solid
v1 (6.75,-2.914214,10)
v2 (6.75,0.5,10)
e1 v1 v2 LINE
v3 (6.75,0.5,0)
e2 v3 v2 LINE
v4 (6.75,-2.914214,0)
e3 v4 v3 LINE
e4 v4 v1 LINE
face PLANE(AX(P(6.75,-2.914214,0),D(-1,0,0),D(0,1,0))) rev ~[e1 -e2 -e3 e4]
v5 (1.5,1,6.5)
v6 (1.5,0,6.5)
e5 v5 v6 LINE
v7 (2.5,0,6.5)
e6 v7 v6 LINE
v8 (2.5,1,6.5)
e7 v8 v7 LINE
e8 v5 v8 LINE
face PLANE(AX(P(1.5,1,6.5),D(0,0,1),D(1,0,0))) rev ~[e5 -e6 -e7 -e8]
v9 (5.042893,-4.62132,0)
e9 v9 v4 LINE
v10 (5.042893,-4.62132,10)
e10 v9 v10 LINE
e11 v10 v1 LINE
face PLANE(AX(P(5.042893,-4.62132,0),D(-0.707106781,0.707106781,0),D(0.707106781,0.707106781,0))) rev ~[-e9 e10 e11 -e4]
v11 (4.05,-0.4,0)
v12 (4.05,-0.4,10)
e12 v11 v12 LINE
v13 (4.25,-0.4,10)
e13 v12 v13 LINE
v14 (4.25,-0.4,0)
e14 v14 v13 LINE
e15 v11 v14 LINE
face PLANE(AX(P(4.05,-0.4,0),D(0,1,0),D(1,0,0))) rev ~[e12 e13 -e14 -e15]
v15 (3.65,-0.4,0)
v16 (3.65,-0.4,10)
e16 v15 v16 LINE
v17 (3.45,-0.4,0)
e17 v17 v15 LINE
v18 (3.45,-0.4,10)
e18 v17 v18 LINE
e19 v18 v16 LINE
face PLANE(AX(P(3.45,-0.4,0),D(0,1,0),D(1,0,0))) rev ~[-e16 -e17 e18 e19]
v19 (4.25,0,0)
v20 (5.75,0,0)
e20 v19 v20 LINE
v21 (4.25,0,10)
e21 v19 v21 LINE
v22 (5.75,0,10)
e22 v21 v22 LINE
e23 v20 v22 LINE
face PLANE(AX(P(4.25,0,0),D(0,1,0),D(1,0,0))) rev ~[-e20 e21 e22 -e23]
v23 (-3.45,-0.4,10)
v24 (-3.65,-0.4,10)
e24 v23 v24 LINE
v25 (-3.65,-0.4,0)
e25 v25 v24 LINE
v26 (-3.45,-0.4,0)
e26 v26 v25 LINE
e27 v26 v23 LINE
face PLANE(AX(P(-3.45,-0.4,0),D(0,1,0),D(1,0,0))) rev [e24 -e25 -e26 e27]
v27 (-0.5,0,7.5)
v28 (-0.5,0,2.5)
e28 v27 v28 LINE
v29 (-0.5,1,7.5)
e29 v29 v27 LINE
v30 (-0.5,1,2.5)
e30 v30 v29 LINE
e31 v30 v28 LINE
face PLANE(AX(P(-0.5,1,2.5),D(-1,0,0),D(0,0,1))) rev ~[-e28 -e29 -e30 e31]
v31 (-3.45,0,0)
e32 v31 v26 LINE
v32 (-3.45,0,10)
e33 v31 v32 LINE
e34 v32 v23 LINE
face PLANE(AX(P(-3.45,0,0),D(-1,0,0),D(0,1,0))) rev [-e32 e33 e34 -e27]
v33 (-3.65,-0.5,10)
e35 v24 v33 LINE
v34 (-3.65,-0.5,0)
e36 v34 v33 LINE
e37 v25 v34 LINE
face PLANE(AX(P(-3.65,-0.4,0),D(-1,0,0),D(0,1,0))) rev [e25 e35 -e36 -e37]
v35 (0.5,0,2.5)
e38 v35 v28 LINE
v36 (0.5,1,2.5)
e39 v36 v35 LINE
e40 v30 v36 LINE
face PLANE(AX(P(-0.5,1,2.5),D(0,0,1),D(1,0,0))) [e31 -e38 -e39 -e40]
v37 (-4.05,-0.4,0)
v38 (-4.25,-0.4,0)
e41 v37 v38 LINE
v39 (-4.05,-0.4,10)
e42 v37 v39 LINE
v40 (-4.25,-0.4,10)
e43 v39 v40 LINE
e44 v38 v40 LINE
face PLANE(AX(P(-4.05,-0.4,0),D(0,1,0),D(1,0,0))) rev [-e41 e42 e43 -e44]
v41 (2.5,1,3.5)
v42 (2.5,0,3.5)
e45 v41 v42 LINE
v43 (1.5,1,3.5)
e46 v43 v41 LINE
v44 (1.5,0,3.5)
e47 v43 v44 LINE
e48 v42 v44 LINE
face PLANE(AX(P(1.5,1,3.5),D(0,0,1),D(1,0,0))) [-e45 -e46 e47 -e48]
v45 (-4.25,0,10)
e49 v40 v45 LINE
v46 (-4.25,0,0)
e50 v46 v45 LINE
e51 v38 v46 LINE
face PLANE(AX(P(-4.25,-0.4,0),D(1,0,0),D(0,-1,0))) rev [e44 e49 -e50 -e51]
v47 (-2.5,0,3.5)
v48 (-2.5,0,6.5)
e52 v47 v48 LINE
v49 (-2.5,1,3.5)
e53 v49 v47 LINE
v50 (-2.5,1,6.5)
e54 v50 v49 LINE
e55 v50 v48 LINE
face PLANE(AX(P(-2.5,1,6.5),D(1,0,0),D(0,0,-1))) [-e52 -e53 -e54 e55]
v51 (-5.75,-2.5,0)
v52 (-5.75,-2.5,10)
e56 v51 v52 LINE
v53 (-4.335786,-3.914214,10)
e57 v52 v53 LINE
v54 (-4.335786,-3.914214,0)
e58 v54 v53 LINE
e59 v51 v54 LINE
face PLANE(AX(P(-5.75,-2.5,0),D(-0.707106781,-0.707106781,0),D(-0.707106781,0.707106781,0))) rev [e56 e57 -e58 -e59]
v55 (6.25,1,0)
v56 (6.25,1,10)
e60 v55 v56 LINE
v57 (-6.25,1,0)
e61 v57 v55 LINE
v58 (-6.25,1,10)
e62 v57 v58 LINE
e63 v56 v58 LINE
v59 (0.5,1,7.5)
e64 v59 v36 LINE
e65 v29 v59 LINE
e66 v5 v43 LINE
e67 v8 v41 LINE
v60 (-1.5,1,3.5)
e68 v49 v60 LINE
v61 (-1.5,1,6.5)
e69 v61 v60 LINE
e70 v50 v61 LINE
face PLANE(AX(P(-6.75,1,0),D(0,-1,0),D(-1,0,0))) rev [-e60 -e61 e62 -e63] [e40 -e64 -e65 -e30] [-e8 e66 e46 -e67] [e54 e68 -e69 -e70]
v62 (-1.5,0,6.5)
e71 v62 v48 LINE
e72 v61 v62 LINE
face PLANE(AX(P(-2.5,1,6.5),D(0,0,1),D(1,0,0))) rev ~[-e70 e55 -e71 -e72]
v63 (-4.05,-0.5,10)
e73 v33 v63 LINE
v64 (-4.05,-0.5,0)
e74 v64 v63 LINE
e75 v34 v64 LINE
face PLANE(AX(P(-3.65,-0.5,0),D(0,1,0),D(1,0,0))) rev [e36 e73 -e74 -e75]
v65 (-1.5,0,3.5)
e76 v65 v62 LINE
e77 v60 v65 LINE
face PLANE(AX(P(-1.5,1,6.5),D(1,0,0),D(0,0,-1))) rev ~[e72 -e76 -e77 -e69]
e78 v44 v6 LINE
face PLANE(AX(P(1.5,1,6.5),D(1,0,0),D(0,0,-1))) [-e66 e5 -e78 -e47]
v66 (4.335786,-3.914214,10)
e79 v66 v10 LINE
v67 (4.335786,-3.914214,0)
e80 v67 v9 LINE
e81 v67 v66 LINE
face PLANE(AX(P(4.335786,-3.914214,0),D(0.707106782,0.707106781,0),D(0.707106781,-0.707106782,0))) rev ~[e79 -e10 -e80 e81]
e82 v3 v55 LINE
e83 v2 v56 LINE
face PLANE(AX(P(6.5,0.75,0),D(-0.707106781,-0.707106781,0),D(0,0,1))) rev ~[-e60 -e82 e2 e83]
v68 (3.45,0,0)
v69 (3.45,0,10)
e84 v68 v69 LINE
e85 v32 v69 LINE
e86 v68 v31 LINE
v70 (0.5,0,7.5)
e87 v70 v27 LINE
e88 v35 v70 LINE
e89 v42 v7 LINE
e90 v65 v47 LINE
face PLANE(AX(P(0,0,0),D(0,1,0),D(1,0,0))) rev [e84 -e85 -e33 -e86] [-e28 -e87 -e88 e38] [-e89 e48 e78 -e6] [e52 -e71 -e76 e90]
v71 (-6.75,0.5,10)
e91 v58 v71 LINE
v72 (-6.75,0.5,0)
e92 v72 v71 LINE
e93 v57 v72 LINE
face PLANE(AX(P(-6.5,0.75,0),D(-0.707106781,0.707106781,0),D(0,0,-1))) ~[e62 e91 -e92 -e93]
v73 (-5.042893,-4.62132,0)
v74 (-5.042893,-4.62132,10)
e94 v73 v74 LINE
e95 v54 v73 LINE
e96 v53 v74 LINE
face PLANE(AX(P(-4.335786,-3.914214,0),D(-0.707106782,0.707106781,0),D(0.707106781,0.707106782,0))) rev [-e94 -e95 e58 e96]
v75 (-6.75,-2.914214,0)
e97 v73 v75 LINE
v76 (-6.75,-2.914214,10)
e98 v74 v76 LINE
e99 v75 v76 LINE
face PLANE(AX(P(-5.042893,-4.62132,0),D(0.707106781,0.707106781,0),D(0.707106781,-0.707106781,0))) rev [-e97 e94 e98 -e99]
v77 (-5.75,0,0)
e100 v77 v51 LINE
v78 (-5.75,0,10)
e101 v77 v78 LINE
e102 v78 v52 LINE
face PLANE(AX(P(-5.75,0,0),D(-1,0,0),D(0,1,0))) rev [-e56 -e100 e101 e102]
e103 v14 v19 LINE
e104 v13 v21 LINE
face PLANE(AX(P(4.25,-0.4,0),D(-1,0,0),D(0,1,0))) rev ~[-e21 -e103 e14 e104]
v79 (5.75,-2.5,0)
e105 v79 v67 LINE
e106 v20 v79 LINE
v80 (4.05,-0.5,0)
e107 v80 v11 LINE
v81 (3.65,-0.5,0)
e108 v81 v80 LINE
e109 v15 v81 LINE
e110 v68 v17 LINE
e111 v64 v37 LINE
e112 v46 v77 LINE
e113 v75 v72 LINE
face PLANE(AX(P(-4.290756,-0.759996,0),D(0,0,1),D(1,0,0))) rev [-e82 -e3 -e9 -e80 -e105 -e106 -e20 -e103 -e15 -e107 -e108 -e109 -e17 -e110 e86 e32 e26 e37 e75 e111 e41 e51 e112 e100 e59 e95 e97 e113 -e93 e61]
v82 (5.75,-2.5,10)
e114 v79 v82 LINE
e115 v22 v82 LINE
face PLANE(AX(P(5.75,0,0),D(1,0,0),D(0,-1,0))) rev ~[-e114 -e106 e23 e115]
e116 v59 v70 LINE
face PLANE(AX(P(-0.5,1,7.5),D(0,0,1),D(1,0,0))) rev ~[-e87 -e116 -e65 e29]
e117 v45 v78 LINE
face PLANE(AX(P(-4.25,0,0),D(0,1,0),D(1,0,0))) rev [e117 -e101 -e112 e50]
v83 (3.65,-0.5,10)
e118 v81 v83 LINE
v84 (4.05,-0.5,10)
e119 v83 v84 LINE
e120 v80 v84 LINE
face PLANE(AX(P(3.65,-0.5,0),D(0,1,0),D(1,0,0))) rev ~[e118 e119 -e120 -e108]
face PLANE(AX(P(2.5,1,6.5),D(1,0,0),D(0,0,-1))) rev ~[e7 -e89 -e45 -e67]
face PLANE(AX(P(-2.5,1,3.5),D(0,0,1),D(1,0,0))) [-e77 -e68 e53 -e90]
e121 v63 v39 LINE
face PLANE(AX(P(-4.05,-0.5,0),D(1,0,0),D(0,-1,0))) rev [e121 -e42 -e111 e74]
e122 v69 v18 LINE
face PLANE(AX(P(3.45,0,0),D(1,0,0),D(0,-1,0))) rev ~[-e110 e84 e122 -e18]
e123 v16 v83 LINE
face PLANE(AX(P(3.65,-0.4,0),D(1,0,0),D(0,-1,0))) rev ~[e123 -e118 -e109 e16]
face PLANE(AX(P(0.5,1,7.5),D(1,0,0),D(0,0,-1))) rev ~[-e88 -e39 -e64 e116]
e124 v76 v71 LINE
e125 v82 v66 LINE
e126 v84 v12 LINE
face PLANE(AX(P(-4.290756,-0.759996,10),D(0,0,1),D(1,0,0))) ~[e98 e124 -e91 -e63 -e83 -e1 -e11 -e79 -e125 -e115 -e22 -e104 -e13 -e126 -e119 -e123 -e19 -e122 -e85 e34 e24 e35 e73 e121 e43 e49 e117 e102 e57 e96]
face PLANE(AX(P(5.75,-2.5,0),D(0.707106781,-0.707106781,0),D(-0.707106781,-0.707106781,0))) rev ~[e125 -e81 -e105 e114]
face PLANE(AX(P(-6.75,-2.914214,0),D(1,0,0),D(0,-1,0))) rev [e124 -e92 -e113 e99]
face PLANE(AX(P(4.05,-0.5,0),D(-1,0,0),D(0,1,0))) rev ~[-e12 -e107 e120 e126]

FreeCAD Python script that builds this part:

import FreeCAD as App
import Part
import Sketcher
Q = App.Units.Quantity


def edges_at(feature, points):
    """Names of the edges that pass closest to the given points."""
    edges = feature.Shape.Edges
    near = lambda p: min(range(len(edges)), key=lambda i: edges[i].distToShape(Part.Vertex(*p))[0])
    return sorted({f"Edge{near(p) + 1}" for p in points})

doc = App.newDocument("Part")
params = doc.addObject("Spreadsheet::Sheet", "Params")
for row, (alias, value) in enumerate([
    ("sketch1_height", "1 mm"),
    ("sketch1_length", "2 mm"),
    ("sketch1_length2", "1 mm"),
    ("sketch1_width", "1.5 mm"),
    ("sketch1_width2", "0.2 mm"),
    ("pad1_length", "10 mm"),
    ("chamfer_size", "0.5 mm"),
    ("sketch2_width", "1 mm"),
    ("sketch2_height", "5 mm"),
    ("sketch2_height2", "3 mm"),
], start=1):
    params.set(f"A{row}", alias)
    params.set(f"B{row}", "=" + value)
    params.setAlias(f"B{row}", alias)

body = doc.addObject("PartDesign::Body", "Body")

# Sketch on XY plane
sketch1 = doc.addObject("Sketcher::SketchObject", "Sketch")
body.addObject(sketch1)
sketch1.AttachmentSupport = (doc.XY_Plane, [""])
sketch1.MapMode = "FlatFace"
sketch1.addGeometry(Part.LineSegment(App.Vector(4.25, 0, 0), App.Vector(5.75, 0, 0)), False)
sketch1.addGeometry(Part.LineSegment(App.Vector(5.75, 0, 0), App.Vector(5.75, -2.5, 0)), False)
sketch1.addGeometry(Part.LineSegment(App.Vector(5.75, -2.5, 0), App.Vector(4.34, -3.91, 0)), False)
sketch1.addGeometry(Part.LineSegment(App.Vector(4.34, -3.91, 0), App.Vector(5.04, -4.62, 0)), False)
sketch1.addGeometry(Part.LineSegment(App.Vector(5.04, -4.62, 0), App.Vector(6.75, -2.91, 0)), False)
sketch1.addGeometry(Part.LineSegment(App.Vector(6.75, -2.91, 0), App.Vector(6.75, 1, 0)), False)
sketch1.addGeometry(Part.LineSegment(App.Vector(6.75, 1, 0), App.Vector(0, 1, 0)), False)
sketch1.addGeometry(Part.LineSegment(App.Vector(0, 1, 0), App.Vector(0, 0, 0)), False)
sketch1.addGeometry(Part.LineSegment(App.Vector(0, 0, 0), App.Vector(3.45, 0, 0)), False)
sketch1.addGeometry(Part.LineSegment(App.Vector(3.45, 0, 0), App.Vector(3.45, -0.4, 0)), False)
sketch1.addGeometry(Part.LineSegment(App.Vector(3.45, -0.4, 0), App.Vector(3.65, -0.4, 0)), False)
sketch1.addGeometry(Part.LineSegment(App.Vector(3.65, -0.4, 0), App.Vector(3.65, -0.5, 0)), False)
sketch1.addGeometry(Part.LineSegment(App.Vector(3.65, -0.5, 0), App.Vector(4.05, -0.5, 0)), False)
sketch1.addGeometry(Part.LineSegment(App.Vector(4.05, -0.5, 0), App.Vector(4.05, -0.4, 0)), False)
sketch1.addGeometry(Part.LineSegment(App.Vector(4.05, -0.4, 0), App.Vector(4.25, -0.4, 0)), False)
sketch1.addGeometry(Part.LineSegment(App.Vector(4.25, -0.4, 0), App.Vector(4.25, 0, 0)), False)
sketch1.addConstraint(Sketcher.Constraint("Coincident", 0, 2, 1, 1))
sketch1.addConstraint(Sketcher.Constraint("Coincident", 1, 2, 2, 1))
sketch1.addConstraint(Sketcher.Constraint("Coincident", 2, 2, 3, 1))
sketch1.addConstraint(Sketcher.Constraint("Coincident", 3, 2, 4, 1))
sketch1.addConstraint(Sketcher.Constraint("Coincident", 4, 2, 5, 1))
sketch1.addConstraint(Sketcher.Constraint("Coincident", 5, 2, 6, 1))
sketch1.addConstraint(Sketcher.Constraint("Coincident", 6, 2, 7, 1))
sketch1.addConstraint(Sketcher.Constraint("Coincident", 7, 2, 8, 1))
sketch1.addConstraint(Sketcher.Constraint("Coincident", 8, 2, 9, 1))
sketch1.addConstraint(Sketcher.Constraint("Coincident", 9, 2, 10, 1))
sketch1.addConstraint(Sketcher.Constraint("Coincident", 10, 2, 11, 1))
sketch1.addConstraint(Sketcher.Constraint("Coincident", 11, 2, 12, 1))
sketch1.addConstraint(Sketcher.Constraint("Coincident", 12, 2, 13, 1))
sketch1.addConstraint(Sketcher.Constraint("Coincident", 13, 2, 14, 1))
sketch1.addConstraint(Sketcher.Constraint("Coincident", 14, 2, 15, 1))
sketch1.addConstraint(Sketcher.Constraint("Coincident", 15, 2, 0, 1))
sketch1.addConstraint(Sketcher.Constraint("Horizontal", 0))
sketch1.addConstraint(Sketcher.Constraint("Vertical", 1))
sketch1.addConstraint(Sketcher.Constraint("Vertical", 5))
sketch1.addConstraint(Sketcher.Constraint("Horizontal", 6))
sketch1.addConstraint(Sketcher.Constraint("Vertical", 7))
sketch1.addConstraint(Sketcher.Constraint("Horizontal", 8))
sketch1.addConstraint(Sketcher.Constraint("Vertical", 9))
sketch1.addConstraint(Sketcher.Constraint("Horizontal", 10))
sketch1.addConstraint(Sketcher.Constraint("Vertical", 11))
sketch1.addConstraint(Sketcher.Constraint("Horizontal", 12))
sketch1.addConstraint(Sketcher.Constraint("Vertical", 13))
sketch1.addConstraint(Sketcher.Constraint("Horizontal", 14))
sketch1.addConstraint(Sketcher.Constraint("Vertical", 15))
sketch1.addConstraint(Sketcher.Constraint("Coincident", 7, 2, -1, 1))
sketch1.addConstraint(Sketcher.Constraint("PointOnObject", 0, 2, -1))
sketch1.addConstraint(Sketcher.Constraint("Perpendicular", 2, 3))
sketch1.addConstraint(Sketcher.Constraint("Perpendicular", 3, 4))
sketch1.addConstraint(Sketcher.Constraint("Horizontal", 10, 2, 13, 2))
sketch1.addConstraint(Sketcher.Constraint("Equal", 10, 14))
sketch1.addConstraint(Sketcher.Constraint("Equal", 12, 9))
sketch1.addConstraint(Sketcher.Constraint("DistanceY", 7, 2, 7, 1, Q("1 mm")))
sketch1.addConstraint(Sketcher.Constraint("Angle", 2, Q("-135 deg")))
sketch1.addConstraint(Sketcher.Constraint("Distance", 2, Q("2 mm")))
sketch1.addConstraint(Sketcher.Constraint("Distance", 3, Q("1 mm")))
sketch1.addConstraint(Sketcher.Constraint("DistanceX", 0, 1, 0, 2, Q("1.5 mm")))
sketch1.addConstraint(Sketcher.Constraint("DistanceX", 10, 1, 10, 2, Q("0.2 mm")))
sketch1.addConstraint(Sketcher.Constraint("DistanceX", 12, 1, 12, 2, Q("0.4 mm")))
sketch1.addConstraint(Sketcher.Constraint("DistanceY", 1, 2, 1, 1, Q("2.5 mm")))
sketch1.addConstraint(Sketcher.Constraint("DistanceY", 11, 2, 11, 1, Q("0.1 mm")))
sketch1.addConstraint(Sketcher.Constraint("DistanceX", 1, 2, 4, 2, Q("1 mm")))
sketch1.addConstraint(Sketcher.Constraint("DistanceX", 6, 2, 6, 1, Q("6.75 mm")))
sketch1.setExpression("Constraints[36]", "Params.sketch1_height")
sketch1.setExpression("Constraints[38]", "Params.sketch1_length")
sketch1.setExpression("Constraints[39]", "Params.sketch1_length2")
sketch1.setExpression("Constraints[40]", "Params.sketch1_width")
sketch1.setExpression("Constraints[41]", "Params.sketch1_width2")
pad1 = doc.addObject("PartDesign::Pad", "Pad")
body.addObject(pad1)
pad1.Profile = sketch1
pad1.setExpression("Length", "Params.pad1_length")
doc.recompute()

mirrored = doc.addObject("PartDesign::Mirrored", "Mirrored")
body.addObject(mirrored)
mirrored.Originals = [pad1]
mirrored.MirrorPlane = (doc.YZ_Plane, [""])
body.Tip = mirrored
doc.recompute()

chamfer = doc.addObject("PartDesign::Chamfer", "Chamfer")
body.addObject(chamfer)
chamfer.Base = (mirrored, edges_at(mirrored, [(6.75, 1, 5), (-6.75, 1, 5)]))
chamfer.setExpression("Size", "Params.chamfer_size")

# Sketch on XZ plane
sketch2 = doc.addObject("Sketcher::SketchObject", "Sketch001")
body.addObject(sketch2)
sketch2.AttachmentSupport = (doc.XZ_Plane, [""])
sketch2.MapMode = "FlatFace"
sketch2.AttachmentOffset = App.Placement(App.Vector(0, 0, -1), App.Rotation())
sketch2.addGeometry(Part.LineSegment(App.Vector(0.5, 2.5, 0), App.Vector(-0.5, 2.5, 0)), False)
sketch2.addGeometry(Part.LineSegment(App.Vector(-0.5, 2.5, 0), App.Vector(-0.5, 7.5, 0)), False)
sketch2.addGeometry(Part.LineSegment(App.Vector(-0.5, 7.5, 0), App.Vector(0.5, 7.5, 0)), False)
sketch2.addGeometry(Part.LineSegment(App.Vector(0.5, 7.5, 0), App.Vector(0.5, 2.5, 0)), False)
sketch2.addGeometry(Part.LineSegment(App.Vector(1.5, 3.5, 0), App.Vector(1.5, 6.5, 0)), False)
sketch2.addGeometry(Part.LineSegment(App.Vector(1.5, 6.5, 0), App.Vector(2.5, 6.5, 0)), False)
sketch2.addGeometry(Part.LineSegment(App.Vector(2.5, 6.5, 0), App.Vector(2.5, 3.5, 0)), False)
sketch2.addGeometry(Part.LineSegment(App.Vector(2.5, 3.5, 0), App.Vector(1.5, 3.5, 0)), False)
sketch2.addGeometry(Part.LineSegment(App.Vector(-2.5, 3.5, 0), App.Vector(-2.5, 6.5, 0)), False)
sketch2.addGeometry(Part.LineSegment(App.Vector(-2.5, 6.5, 0), App.Vector(-1.5, 6.5, 0)), False)
sketch2.addGeometry(Part.LineSegment(App.Vector(-1.5, 6.5, 0), App.Vector(-1.5, 3.5, 0)), False)
sketch2.addGeometry(Part.LineSegment(App.Vector(-1.5, 3.5, 0), App.Vector(-2.5, 3.5, 0)), False)
sketch2.addConstraint(Sketcher.Constraint("Coincident", 0, 2, 1, 1))
sketch2.addConstraint(Sketcher.Constraint("Coincident", 1, 2, 2, 1))
sketch2.addConstraint(Sketcher.Constraint("Coincident", 2, 2, 3, 1))
sketch2.addConstraint(Sketcher.Constraint("Coincident", 3, 2, 0, 1))
sketch2.addConstraint(Sketcher.Constraint("Coincident", 4, 2, 5, 1))
sketch2.addConstraint(Sketcher.Constraint("Coincident", 5, 2, 6, 1))
sketch2.addConstraint(Sketcher.Constraint("Coincident", 6, 2, 7, 1))
sketch2.addConstraint(Sketcher.Constraint("Coincident", 7, 2, 4, 1))
sketch2.addConstraint(Sketcher.Constraint("Coincident", 8, 2, 9, 1))
sketch2.addConstraint(Sketcher.Constraint("Coincident", 9, 2, 10, 1))
sketch2.addConstraint(Sketcher.Constraint("Coincident", 10, 2, 11, 1))
sketch2.addConstraint(Sketcher.Constraint("Coincident", 11, 2, 8, 1))
sketch2.addConstraint(Sketcher.Constraint("Horizontal", 0))
sketch2.addConstraint(Sketcher.Constraint("Vertical", 1))
sketch2.addConstraint(Sketcher.Constraint("Horizontal", 2))
sketch2.addConstraint(Sketcher.Constraint("Vertical", 3))
sketch2.addConstraint(Sketcher.Constraint("Vertical", 4))
sketch2.addConstraint(Sketcher.Constraint("Horizontal", 5))
sketch2.addConstraint(Sketcher.Constraint("Vertical", 6))
sketch2.addConstraint(Sketcher.Constraint("Horizontal", 7))
sketch2.addConstraint(Sketcher.Constraint("Vertical", 8))
sketch2.addConstraint(Sketcher.Constraint("Horizontal", 9))
sketch2.addConstraint(Sketcher.Constraint("Vertical", 10))
sketch2.addConstraint(Sketcher.Constraint("Horizontal", 11))
sketch2.addConstraint(Sketcher.Constraint("Symmetric", 5, 2, 8, 2, -2))
sketch2.addConstraint(Sketcher.Constraint("Symmetric", 7, 2, 10, 2, -2))
sketch2.addConstraint(Sketcher.Constraint("Equal", 2, 5))
sketch2.addConstraint(Sketcher.Constraint("DistanceX", 0, 2, 0, 1, Q("1 mm")))
sketch2.addConstraint(Sketcher.Constraint("DistanceY", 1, 1, 1, 2, Q("5 mm")))
sketch2.addConstraint(Sketcher.Constraint("DistanceY", 4, 1, 4, 2, Q("3 mm")))
sketch2.addConstraint(Sketcher.Constraint("DistanceX", 2, 2, 4, 2, Q("1 mm")))
sketch2.addConstraint(Sketcher.Constraint("DistanceY", 4, 2, 2, 2, Q("1 mm")))
sketch2.addConstraint(Sketcher.Constraint("DistanceX", 8, 2, 1, 2, Q("2 mm")))
sketch2.addConstraint(Sketcher.Constraint("DistanceY", -1, 1, 0, 2, Q("2.5 mm")))
sketch2.setExpression("Constraints[27]", "Params.sketch2_width")
sketch2.setExpression("Constraints[28]", "Params.sketch2_height")
sketch2.setExpression("Constraints[29]", "Params.sketch2_height2")
pocket1 = doc.addObject("PartDesign::Pocket", "Pocket")
body.addObject(pocket1)
pocket1.Profile = sketch2
pocket1.Type = "ThroughAll"
pocket1.Reversed = True

doc.recompute()
